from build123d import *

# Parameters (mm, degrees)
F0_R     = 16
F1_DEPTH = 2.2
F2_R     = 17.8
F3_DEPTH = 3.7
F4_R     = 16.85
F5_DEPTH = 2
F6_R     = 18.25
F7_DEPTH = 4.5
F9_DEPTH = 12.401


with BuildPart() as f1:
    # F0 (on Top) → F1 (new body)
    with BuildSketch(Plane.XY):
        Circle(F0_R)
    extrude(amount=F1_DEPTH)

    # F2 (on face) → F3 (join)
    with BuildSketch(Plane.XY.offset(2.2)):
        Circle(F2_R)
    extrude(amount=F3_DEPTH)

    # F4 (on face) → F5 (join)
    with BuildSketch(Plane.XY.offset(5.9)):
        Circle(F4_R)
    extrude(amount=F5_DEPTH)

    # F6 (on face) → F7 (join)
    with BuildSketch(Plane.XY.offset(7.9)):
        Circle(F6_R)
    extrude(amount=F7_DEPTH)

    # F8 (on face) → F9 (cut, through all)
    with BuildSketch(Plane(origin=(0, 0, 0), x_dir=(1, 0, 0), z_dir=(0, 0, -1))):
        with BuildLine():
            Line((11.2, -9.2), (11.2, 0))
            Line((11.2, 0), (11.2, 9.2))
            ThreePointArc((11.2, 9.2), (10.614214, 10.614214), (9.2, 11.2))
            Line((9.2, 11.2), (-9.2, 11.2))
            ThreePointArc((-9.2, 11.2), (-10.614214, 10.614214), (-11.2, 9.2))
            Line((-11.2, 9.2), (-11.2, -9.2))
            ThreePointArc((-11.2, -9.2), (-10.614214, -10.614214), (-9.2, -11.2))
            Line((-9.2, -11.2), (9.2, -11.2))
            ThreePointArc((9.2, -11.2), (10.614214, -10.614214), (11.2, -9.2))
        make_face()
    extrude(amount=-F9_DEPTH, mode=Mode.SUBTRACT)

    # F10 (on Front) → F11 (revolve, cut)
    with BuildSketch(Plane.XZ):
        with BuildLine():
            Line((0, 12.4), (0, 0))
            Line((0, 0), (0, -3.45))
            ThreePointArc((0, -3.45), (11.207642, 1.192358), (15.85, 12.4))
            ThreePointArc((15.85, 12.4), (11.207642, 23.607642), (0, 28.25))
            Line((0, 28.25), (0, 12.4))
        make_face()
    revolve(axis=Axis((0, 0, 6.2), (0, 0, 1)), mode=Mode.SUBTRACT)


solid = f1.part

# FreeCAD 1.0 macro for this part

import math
import FreeCAD as App
import Part
import Sketcher

doc = App.newDocument("Part")
body = doc.addObject("PartDesign::Body", "Body")

# Sketch on XY plane
sketch1 = body.newObject("Sketcher::SketchObject", "Sketch")
sketch1.AttachmentSupport = (doc.getObject("XY_Plane"), [""])
sketch1.MapMode = "FlatFace"
sketch1.addGeometry(Part.Circle(App.Vector(0, 0, 0), App.Vector(0, 0, 1), 16), False)
sketch1.addConstraint(Sketcher.Constraint("Coincident", 0, 3, -1, 1))
sketch1.addConstraint(Sketcher.Constraint("Diameter", 0, 32.0))
pad1 = body.newObject("PartDesign::Pad", "Pad")
pad1.Profile = sketch1
pad1.Length = 2.2

# Sketch on XY plane
sketch2 = body.newObject("Sketcher::SketchObject", "Sketch001")
sketch2.AttachmentSupport = (doc.getObject("XY_Plane"), [""])
sketch2.MapMode = "FlatFace"
sketch2.AttachmentOffset = App.Placement(App.Vector(0, 0, 2.2), App.Rotation())
sketch2.addGeometry(Part.Circle(App.Vector(0, 0, 0), App.Vector(0, 0, 1), 17.8), False)
sketch2.addConstraint(Sketcher.Constraint("Coincident", 0, 3, -1, 1))
sketch2.addConstraint(Sketcher.Constraint("Diameter", 0, 35.6))
pad2 = body.newObject("PartDesign::Pad", "Pad001")
pad2.Profile = sketch2
pad2.Length = 3.7

# Sketch on XY plane
sketch3 = body.newObject("Sketcher::SketchObject", "Sketch002")
sketch3.AttachmentSupport = (doc.getObject("XY_Plane"), [""])
sketch3.MapMode = "FlatFace"
sketch3.AttachmentOffset = App.Placement(App.Vector(0, 0, 5.9), App.Rotation())
sketch3.addGeometry(Part.Circle(App.Vector(0, 0, 0), App.Vector(0, 0, 1), 16.85), False)
sketch3.addConstraint(Sketcher.Constraint("Coincident", 0, 3, -1, 1))
sketch3.addConstraint(Sketcher.Constraint("Diameter", 0, 33.7))
pad3 = body.newObject("PartDesign::Pad", "Pad002")
pad3.Profile = sketch3
pad3.Length = 2

# Sketch on XY plane
sketch4 = body.newObject("Sketcher::SketchObject", "Sketch003")
sketch4.AttachmentSupport = (doc.getObject("XY_Plane"), [""])
sketch4.MapMode = "FlatFace"
sketch4.AttachmentOffset = App.Placement(App.Vector(0, 0, 7.9), App.Rotation())
sketch4.addGeometry(Part.Circle(App.Vector(0, 0, 0), App.Vector(0, 0, 1), 18.25), False)
sketch4.addConstraint(Sketcher.Constraint("Coincident", 0, 3, -1, 1))
sketch4.addConstraint(Sketcher.Constraint("Diameter", 0, 36.5))
pad4 = body.newObject("PartDesign::Pad", "Pad003")
pad4.Profile = sketch4
pad4.Length = 4.5

# Sketch on XY plane
sketch5 = body.newObject("Sketcher::SketchObject", "Sketch004")
sketch5.AttachmentSupport = (doc.getObject("XY_Plane"), [""])
sketch5.MapMode = "FlatFace"
sketch5.addGeometry(Part.LineSegment(App.Vector(11.2, 9.2, 0), App.Vector(11.2, -9.2, 0)), False)
sketch5.addGeometry(Part.ArcOfCircle(Part.Circle(App.Vector(9.200001, -9.200001, 0), App.Vector(0, 0, 1), 1.999999), math.radians(-90.000043), math.radians(0.000043)), False)
sketch5.addGeometry(Part.LineSegment(App.Vector(9.2, -11.2, 0), App.Vector(-9.2, -11.2, 0)), False)
sketch5.addGeometry(Part.ArcOfCircle(Part.Circle(App.Vector(-9.200001, -9.200001, 0), App.Vector(0, 0, 1), 1.999999), math.radians(179.999957), math.radians(270.000043)), False)
sketch5.addGeometry(Part.LineSegment(App.Vector(-11.2, -9.2, 0), App.Vector(-11.2, 9.2, 0)), False)
sketch5.addGeometry(Part.ArcOfCircle(Part.Circle(App.Vector(-9.200001, 9.200001, 0), App.Vector(0, 0, 1), 1.999999), math.radians(89.999957), math.radians(180.000043)), False)
sketch5.addGeometry(Part.LineSegment(App.Vector(-9.2, 11.2, 0), App.Vector(9.2, 11.2, 0)), False)
sketch5.addGeometry(Part.ArcOfCircle(Part.Circle(App.Vector(9.200001, 9.200001, 0), App.Vector(0, 0, 1), 1.999999), math.radians(-0.000043), math.radians(90.000043)), False)
sketch5.addConstraint(Sketcher.Constraint("Tangent", 0, 2, 1, 2))
sketch5.addConstraint(Sketcher.Constraint("Tangent", 1, 1, 2, 1))
sketch5.addConstraint(Sketcher.Constraint("Tangent", 2, 2, 3, 2))
sketch5.addConstraint(Sketcher.Constraint("Tangent", 3, 1, 4, 1))
sketch5.addConstraint(Sketcher.Constraint("Tangent", 4, 2, 5, 2))
sketch5.addConstraint(Sketcher.Constraint("Tangent", 5, 1, 6, 1))
sketch5.addConstraint(Sketcher.Constraint("Tangent", 6, 2, 7, 2))
sketch5.addConstraint(Sketcher.Constraint("Tangent", 7, 1, 0, 1))
sketch5.addConstraint(Sketcher.Constraint("Vertical", 0))
sketch5.addConstraint(Sketcher.Constraint("Horizontal", 2))
sketch5.addConstraint(Sketcher.Constraint("Vertical", 4))
sketch5.addConstraint(Sketcher.Constraint("Horizontal", 6))
sketch5.addConstraint(Sketcher.Constraint("Equal", 1, 3))
sketch5.addConstraint(Sketcher.Constraint("Equal", 3, 5))
sketch5.addConstraint(Sketcher.Constraint("Equal", 5, 7))
sketch5.addConstraint(Sketcher.Constraint("Symmetric", 1, 3, 5, 3, -1, 1))
sketch5.addConstraint(Sketcher.Constraint("Equal", 6, 0))
sketch5.addConstraint(Sketcher.Constraint("Radius", 1, 1.999999))
sketch5.addConstraint(Sketcher.Constraint("DistanceX", 2, 2, 2, 1, 18.4))
pocket1 = body.newObject("PartDesign::Pocket", "Pocket")
pocket1.Profile = sketch5
pocket1.Type = "ThroughAll"
pocket1.Reversed = True

# Sketch on XZ plane
sketch6 = body.newObject("Sketcher::SketchObject", "Sketch005")
sketch6.AttachmentSupport = (doc.getObject("XZ_Plane"), [""])
sketch6.MapMode = "FlatFace"
sketch6.addGeometry(Part.ArcOfCircle(Part.Circle(App.Vector(-0.000002, 12.400002, 0), App.Vector(0, 0, 1), 15.850002), math.radians(-89.999994), math.radians(-0.000006)), False)
sketch6.addGeometry(Part.ArcOfCircle(Part.Circle(App.Vector(-0.000002, 12.399998, 0), App.Vector(0, 0, 1), 15.850002), math.radians(0.000006), math.radians(89.999994)), False)
sketch6.addGeometry(Part.LineSegment(App.Vector(0, 28.25, 0), App.Vector(0, -3.45, 0)), False)
sketch6.addConstraint(Sketcher.Constraint("Tangent", 0, 2, 1, 1))
sketch6.addConstraint(Sketcher.Constraint("Coincident", 1, 2, 2, 1))
sketch6.addConstraint(Sketcher.Constraint("Coincident", 2, 2, 0, 1))
sketch6.addConstraint(Sketcher.Constraint("Vertical", 2))
sketch6.addConstraint(Sketcher.Constraint("Equal", 0, 1))
sketch6.addConstraint(Sketcher.Constraint("PointOnObject", 0, 3, -2))
sketch6.addConstraint(Sketcher.Constraint("PointOnObject", 1, 2, -2))
sketch6.addConstraint(Sketcher.Constraint("Horizontal", 1, 3, 0, 2))
sketch6.addConstraint(Sketcher.Constraint("Radius", 0, 15.850002))
sketch6.addConstraint(Sketcher.Constraint("DistanceY", -1, 1, 0, 3, 12.400002))
groove = body.newObject("PartDesign::Groove", "Groove")
groove.Profile = sketch6
groove.ReferenceAxis = (sketch6, ["V_Axis"])
groove.Angle = 360

doc.recompute()
